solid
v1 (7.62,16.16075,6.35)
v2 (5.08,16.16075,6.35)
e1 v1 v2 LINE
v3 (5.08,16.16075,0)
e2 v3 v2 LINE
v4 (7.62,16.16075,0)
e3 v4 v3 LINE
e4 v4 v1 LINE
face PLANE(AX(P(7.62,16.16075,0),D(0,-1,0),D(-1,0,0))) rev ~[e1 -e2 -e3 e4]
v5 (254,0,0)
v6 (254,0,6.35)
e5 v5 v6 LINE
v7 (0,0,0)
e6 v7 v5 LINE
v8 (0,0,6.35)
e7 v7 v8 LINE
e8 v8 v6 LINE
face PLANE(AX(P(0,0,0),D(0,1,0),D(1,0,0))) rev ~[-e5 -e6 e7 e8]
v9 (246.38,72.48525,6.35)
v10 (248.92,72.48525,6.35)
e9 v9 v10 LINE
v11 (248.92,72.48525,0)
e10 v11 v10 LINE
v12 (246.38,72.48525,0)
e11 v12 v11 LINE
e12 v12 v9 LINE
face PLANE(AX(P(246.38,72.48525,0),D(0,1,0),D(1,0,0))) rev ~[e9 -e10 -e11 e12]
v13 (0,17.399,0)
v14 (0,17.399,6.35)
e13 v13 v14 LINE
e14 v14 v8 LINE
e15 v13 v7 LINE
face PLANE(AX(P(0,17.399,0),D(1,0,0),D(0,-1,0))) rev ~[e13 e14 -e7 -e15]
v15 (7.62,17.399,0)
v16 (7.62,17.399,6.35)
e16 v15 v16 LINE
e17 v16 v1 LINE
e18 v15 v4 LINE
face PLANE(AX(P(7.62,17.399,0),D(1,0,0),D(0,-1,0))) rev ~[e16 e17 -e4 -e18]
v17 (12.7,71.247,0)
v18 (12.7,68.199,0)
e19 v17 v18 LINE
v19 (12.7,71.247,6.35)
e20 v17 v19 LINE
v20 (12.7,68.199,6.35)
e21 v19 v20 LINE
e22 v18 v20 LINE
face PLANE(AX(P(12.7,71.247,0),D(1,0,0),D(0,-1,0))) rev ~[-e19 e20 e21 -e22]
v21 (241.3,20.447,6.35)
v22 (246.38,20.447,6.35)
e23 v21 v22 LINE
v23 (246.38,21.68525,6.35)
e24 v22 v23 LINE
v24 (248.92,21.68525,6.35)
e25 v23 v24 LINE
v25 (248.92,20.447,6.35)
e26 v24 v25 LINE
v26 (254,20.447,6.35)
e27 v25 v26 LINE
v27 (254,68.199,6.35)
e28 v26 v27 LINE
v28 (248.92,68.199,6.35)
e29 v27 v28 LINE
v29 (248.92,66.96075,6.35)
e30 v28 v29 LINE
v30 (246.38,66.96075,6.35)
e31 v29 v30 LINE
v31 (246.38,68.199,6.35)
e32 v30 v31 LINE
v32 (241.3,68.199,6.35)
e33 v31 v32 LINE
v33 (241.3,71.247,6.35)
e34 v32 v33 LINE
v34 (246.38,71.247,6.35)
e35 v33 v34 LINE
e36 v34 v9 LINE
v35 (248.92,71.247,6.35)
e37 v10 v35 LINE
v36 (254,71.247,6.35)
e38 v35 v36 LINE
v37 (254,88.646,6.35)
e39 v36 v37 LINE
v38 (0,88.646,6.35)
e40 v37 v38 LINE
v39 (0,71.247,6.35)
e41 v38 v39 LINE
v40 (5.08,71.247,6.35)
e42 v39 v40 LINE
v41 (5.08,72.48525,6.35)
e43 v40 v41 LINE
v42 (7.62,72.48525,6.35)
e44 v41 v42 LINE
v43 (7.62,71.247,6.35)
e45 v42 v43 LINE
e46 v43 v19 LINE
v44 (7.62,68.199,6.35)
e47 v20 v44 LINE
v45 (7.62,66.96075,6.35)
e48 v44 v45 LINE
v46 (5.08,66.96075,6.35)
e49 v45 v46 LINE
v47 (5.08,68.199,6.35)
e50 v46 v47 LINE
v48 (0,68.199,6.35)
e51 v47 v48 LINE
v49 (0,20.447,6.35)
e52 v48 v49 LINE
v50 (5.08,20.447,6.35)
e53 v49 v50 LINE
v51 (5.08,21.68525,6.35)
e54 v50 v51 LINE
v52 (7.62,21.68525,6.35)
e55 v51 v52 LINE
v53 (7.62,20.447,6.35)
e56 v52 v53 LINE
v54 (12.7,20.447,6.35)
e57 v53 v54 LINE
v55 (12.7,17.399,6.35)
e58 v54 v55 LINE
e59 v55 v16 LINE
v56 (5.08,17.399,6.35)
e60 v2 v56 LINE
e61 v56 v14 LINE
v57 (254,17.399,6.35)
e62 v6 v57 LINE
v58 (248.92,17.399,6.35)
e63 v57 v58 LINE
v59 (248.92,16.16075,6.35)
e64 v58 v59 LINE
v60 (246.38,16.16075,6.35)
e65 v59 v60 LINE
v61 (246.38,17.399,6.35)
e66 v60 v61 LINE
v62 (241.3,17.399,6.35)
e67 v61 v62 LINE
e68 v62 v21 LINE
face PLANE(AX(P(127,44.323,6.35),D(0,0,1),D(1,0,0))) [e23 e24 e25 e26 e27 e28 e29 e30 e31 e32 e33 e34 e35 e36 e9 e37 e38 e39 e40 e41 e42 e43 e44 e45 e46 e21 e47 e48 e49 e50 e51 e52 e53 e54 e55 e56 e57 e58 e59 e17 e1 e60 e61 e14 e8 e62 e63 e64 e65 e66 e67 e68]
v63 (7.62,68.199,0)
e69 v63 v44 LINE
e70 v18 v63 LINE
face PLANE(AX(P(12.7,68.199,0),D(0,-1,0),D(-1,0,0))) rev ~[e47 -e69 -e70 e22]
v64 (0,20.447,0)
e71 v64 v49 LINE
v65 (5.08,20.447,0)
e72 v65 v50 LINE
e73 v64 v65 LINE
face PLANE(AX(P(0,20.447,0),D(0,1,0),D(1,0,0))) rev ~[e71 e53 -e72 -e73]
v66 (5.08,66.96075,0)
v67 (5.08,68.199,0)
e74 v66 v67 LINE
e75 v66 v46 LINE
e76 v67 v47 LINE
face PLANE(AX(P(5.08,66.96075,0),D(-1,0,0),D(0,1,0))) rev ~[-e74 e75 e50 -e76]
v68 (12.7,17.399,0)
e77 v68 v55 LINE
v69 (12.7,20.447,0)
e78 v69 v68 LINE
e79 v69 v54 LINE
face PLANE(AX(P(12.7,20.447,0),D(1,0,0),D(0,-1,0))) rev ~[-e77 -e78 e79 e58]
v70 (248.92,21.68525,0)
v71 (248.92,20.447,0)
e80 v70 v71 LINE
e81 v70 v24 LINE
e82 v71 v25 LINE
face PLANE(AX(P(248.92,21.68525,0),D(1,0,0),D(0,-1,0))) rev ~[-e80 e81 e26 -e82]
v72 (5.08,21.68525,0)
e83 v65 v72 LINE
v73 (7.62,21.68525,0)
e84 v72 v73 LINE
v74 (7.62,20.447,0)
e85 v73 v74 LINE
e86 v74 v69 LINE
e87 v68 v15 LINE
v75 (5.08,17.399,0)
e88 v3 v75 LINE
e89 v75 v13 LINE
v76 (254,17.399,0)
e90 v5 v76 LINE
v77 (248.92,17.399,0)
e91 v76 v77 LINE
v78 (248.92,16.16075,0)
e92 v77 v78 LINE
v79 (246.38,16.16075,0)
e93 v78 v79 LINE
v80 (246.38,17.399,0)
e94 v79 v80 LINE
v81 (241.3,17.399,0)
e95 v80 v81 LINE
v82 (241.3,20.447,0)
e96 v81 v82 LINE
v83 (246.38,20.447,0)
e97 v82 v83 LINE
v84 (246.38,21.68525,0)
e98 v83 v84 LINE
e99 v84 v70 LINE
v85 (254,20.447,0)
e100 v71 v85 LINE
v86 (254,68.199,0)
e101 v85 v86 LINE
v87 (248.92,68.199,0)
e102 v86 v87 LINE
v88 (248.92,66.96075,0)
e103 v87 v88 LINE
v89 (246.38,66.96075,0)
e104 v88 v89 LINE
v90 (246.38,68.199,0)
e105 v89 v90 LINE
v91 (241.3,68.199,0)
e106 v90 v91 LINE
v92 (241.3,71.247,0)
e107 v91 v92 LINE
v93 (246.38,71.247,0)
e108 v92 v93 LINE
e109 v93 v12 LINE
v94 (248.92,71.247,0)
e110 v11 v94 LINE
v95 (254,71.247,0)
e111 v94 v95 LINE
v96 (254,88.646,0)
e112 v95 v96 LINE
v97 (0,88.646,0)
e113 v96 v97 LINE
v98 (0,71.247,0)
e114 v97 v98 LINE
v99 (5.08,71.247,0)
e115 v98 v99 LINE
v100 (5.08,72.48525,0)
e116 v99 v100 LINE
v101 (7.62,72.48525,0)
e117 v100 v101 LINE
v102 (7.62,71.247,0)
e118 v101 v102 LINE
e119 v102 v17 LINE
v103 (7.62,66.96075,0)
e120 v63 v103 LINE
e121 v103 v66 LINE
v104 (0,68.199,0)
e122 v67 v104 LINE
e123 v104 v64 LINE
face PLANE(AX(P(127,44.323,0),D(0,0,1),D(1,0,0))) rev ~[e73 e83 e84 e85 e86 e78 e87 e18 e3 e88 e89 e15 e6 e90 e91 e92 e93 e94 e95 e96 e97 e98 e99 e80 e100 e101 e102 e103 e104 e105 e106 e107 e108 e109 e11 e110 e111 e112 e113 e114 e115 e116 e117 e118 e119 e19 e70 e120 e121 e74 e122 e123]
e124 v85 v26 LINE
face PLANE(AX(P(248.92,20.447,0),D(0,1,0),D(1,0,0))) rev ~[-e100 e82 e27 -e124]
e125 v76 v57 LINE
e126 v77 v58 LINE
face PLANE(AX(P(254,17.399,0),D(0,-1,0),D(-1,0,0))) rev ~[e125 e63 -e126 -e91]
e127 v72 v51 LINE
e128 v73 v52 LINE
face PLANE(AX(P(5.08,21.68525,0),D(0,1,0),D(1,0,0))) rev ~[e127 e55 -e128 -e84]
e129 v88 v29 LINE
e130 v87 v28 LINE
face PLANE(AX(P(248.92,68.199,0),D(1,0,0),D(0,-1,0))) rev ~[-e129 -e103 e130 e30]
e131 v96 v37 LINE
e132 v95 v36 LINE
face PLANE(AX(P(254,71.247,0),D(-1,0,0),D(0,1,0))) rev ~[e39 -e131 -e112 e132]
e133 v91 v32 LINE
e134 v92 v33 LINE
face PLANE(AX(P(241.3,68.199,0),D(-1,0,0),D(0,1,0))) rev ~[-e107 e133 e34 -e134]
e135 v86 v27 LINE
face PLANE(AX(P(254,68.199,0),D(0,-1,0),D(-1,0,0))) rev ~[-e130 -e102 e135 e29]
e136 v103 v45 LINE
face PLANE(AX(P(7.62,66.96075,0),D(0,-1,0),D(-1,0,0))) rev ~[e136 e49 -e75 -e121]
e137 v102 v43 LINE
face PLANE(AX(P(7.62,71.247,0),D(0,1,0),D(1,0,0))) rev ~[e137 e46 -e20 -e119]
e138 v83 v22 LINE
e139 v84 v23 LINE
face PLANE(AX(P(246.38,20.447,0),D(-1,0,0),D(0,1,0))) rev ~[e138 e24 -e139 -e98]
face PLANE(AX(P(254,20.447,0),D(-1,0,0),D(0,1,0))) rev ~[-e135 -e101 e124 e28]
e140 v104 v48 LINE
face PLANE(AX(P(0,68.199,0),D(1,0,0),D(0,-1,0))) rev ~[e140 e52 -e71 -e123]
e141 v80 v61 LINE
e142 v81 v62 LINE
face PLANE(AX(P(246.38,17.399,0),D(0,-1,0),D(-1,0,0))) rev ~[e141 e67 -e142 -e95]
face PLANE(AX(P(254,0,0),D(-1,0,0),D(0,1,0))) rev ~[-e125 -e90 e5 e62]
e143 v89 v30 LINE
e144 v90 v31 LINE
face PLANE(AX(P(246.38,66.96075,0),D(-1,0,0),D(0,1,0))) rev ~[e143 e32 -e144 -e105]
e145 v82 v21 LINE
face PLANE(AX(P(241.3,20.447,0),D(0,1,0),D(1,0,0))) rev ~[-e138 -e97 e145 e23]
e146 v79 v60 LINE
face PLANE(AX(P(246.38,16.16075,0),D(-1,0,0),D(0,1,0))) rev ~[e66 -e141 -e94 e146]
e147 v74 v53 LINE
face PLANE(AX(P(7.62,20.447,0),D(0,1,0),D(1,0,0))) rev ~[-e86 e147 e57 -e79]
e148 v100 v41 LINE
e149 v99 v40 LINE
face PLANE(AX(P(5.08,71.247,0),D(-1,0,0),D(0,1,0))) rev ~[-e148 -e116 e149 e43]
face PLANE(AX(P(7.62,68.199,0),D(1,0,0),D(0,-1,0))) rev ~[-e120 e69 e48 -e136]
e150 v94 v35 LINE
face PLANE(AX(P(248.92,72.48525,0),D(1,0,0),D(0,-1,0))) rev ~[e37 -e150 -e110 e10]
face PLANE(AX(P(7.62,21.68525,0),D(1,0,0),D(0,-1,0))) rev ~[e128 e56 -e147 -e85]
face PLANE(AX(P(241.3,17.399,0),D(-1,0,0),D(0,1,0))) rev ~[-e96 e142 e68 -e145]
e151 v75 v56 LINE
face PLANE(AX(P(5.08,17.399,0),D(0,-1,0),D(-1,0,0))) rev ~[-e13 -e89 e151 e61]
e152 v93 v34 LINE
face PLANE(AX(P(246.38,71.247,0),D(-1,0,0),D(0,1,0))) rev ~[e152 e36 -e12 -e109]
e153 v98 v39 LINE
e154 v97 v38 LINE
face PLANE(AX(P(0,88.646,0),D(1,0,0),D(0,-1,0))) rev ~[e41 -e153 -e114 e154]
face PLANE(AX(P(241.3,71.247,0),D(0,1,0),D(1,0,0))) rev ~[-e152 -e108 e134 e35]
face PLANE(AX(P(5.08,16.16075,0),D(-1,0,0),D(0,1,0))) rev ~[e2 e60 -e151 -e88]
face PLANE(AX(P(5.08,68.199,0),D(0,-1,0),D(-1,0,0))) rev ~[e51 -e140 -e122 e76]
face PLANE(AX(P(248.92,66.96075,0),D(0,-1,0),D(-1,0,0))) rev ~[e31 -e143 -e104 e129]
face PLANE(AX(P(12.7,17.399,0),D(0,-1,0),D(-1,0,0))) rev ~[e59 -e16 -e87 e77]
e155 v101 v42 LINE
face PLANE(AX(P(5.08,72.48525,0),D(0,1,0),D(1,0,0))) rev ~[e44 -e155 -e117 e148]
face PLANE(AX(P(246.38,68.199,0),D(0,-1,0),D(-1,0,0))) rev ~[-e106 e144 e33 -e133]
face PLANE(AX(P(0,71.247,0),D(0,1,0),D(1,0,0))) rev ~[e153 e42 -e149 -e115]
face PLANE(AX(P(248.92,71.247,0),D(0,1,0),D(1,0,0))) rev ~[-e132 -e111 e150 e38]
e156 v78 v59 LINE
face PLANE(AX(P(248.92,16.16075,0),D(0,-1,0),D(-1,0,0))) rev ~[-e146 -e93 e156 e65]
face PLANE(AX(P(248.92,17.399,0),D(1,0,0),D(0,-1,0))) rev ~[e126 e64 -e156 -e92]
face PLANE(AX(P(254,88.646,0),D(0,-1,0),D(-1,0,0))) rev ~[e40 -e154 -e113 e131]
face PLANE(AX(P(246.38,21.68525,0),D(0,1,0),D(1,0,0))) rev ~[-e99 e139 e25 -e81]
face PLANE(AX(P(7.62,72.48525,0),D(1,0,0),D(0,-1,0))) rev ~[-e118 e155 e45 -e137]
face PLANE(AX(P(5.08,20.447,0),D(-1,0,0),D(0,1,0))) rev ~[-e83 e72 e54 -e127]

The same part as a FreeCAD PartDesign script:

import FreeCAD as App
import Part
import Sketcher
Q = App.Units.Quantity


def add_polygon(sketch, points):
    """Adds a closed chain of lines whose ends are joined by coincident constraints."""
    first, n = sketch.GeometryCount, len(points)
    for a, b in zip(points, points[1:] + points[:1]):
        sketch.addGeometry(Part.LineSegment(App.Vector(*a, 0), App.Vector(*b, 0)), False)
    for i in range(n):
        sketch.addConstraint(Sketcher.Constraint("Coincident", first + i, 2, first + (i + 1) % n, 1))

doc = App.newDocument("Part")
body = doc.addObject("PartDesign::Body", "Body")

sketch1 = body.newObject("Sketcher::SketchObject", "Sketch")
sketch1.AttachmentSupport = (doc.getObject("XY_Plane"), [""])
sketch1.MapMode = "FlatFace"
add_polygon(sketch1, [(0, 17.4), (0, 0), (254, 0), (254, 17.4), (248.9, 17.4), (248.9, 16.2), (246.4, 16.2), (246.4, 17.4), (241.3, 17.4), (241.3, 20.4), (246.4, 20.4), (246.4, 21.7), (248.9, 21.7), (248.9, 20.4), (254, 20.4), (254, 68.2), (248.9, 68.2), (248.9, 67), (246.4, 67), (246.4, 68.2), (241.3, 68.2), (241.3, 71.2), (246.4, 71.2), (246.4, 72.5), (248.9, 72.5), (248.9, 71.2), (254, 71.2), (254, 88.6), (0, 88.6), (0, 71.2), (5.1, 71.2), (5.1, 72.5), (7.6, 72.5), (7.6, 71.2), (12.7, 71.2), (12.7, 68.2), (7.6, 68.2), (7.6, 67), (5.1, 67), (5.1, 68.2), (0, 68.2), (0, 20.4), (5.1, 20.4), (5.1, 21.7), (7.6, 21.7), (7.6, 20.4), (12.7, 20.4), (12.7, 17.4), (7.6, 17.4), (7.6, 16.2), (5.1, 16.2), (5.1, 17.4)])
sketch1.addConstraint([
    Sketcher.Constraint("Vertical", 0),
    Sketcher.Constraint("Horizontal", 1),
    Sketcher.Constraint("Vertical", 2),
    Sketcher.Constraint("Horizontal", 3),
    Sketcher.Constraint("Vertical", 4),
    Sketcher.Constraint("Horizontal", 5),
    Sketcher.Constraint("Vertical", 6),
    Sketcher.Constraint("Horizontal", 7),
    Sketcher.Constraint("Vertical", 8),
    Sketcher.Constraint("Horizontal", 9),
    Sketcher.Constraint("Vertical", 10),
    Sketcher.Constraint("Horizontal", 11),
    Sketcher.Constraint("Vertical", 12),
    Sketcher.Constraint("Horizontal", 13),
    Sketcher.Constraint("Vertical", 14),
    Sketcher.Constraint("Horizontal", 15),
    Sketcher.Constraint("Vertical", 16),
    Sketcher.Constraint("Horizontal", 17),
    Sketcher.Constraint("Vertical", 18),
    Sketcher.Constraint("Horizontal", 19),
    Sketcher.Constraint("Vertical", 20),
    Sketcher.Constraint("Horizontal", 21),
    Sketcher.Constraint("Vertical", 22),
    Sketcher.Constraint("Horizontal", 23),
    Sketcher.Constraint("Vertical", 24),
    Sketcher.Constraint("Horizontal", 25),
    Sketcher.Constraint("Vertical", 26),
    Sketcher.Constraint("Horizontal", 27),
    Sketcher.Constraint("Vertical", 28),
    Sketcher.Constraint("Horizontal", 29),
    Sketcher.Constraint("Vertical", 30),
    Sketcher.Constraint("Horizontal", 31),
    Sketcher.Constraint("Vertical", 32),
    Sketcher.Constraint("Horizontal", 33),
    Sketcher.Constraint("Vertical", 34),
    Sketcher.Constraint("Horizontal", 35),
    Sketcher.Constraint("Vertical", 36),
    Sketcher.Constraint("Horizontal", 37),
    Sketcher.Constraint("Vertical", 38),
    Sketcher.Constraint("Horizontal", 39),
    Sketcher.Constraint("Vertical", 40),
    Sketcher.Constraint("Horizontal", 41),
    Sketcher.Constraint("Vertical", 42),
    Sketcher.Constraint("Horizontal", 43),
    Sketcher.Constraint("Vertical", 44),
    Sketcher.Constraint("Horizontal", 45),
    Sketcher.Constraint("Vertical", 46),
    Sketcher.Constraint("Horizontal", 47),
    Sketcher.Constraint("Vertical", 48),
    Sketcher.Constraint("Horizontal", 49),
    Sketcher.Constraint("Vertical", 50),
    Sketcher.Constraint("Horizontal", 51),
    Sketcher.Constraint("Coincident", 0, 2, -1, 1),
    Sketcher.Constraint("PointOnObject", 27, 2, -2),
    Sketcher.Constraint("PointOnObject", 39, 2, -2),
    Sketcher.Constraint("Horizontal", 3, 2, 6, 2),
    Sketcher.Constraint("Horizontal", 9, 2, 12, 2),
    Sketcher.Constraint("Horizontal", 15, 2, 18, 2),
    Sketcher.Constraint("Horizontal", 21, 2, 24, 2),
    Sketcher.Constraint("Horizontal", 25, 2, 28, 2),
    Sketcher.Constraint("Horizontal", 23, 2, 30, 2),
    Sketcher.Constraint("Horizontal", 29, 2, 32, 2),
    Sketcher.Constraint("Horizontal", 19, 2, 34, 2),
    Sketcher.Constraint("Horizontal", 17, 2, 36, 2),
    Sketcher.Constraint("Horizontal", 35, 2, 38, 2),
    Sketcher.Constraint("Horizontal", 13, 2, 40, 2),
    Sketcher.Constraint("Horizontal", 11, 2, 42, 2),
    Sketcher.Constraint("Horizontal", 41, 2, 44, 2),
    Sketcher.Constraint("Horizontal", 7, 2, 46, 2),
    Sketcher.Constraint("Horizontal", 5, 2, 48, 2),
    Sketcher.Constraint("Horizontal", 47, 2, 50, 2),
    Sketcher.Constraint("Vertical", 6, 2, 9, 2),
    Sketcher.Constraint("Vertical", 4, 2, 11, 2),
    Sketcher.Constraint("Vertical", 2, 2, 13, 2),
    Sketcher.Constraint("Vertical", 12, 2, 15, 2),
    Sketcher.Constraint("Vertical", 10, 2, 17, 2),
    Sketcher.Constraint("Vertical", 8, 2, 19, 2),
    Sketcher.Constraint("Vertical", 18, 2, 21, 2),
    Sketcher.Constraint("Vertical", 16, 2, 23, 2),
    Sketcher.Constraint("Vertical", 14, 2, 25, 2),
    Sketcher.Constraint("Vertical", 32, 2, 35, 2),
    Sketcher.Constraint("Vertical", 30, 2, 37, 2),
    Sketcher.Constraint("Vertical", 38, 2, 41, 2),
    Sketcher.Constraint("Vertical", 36, 2, 43, 2),
    Sketcher.Constraint("Vertical", 34, 2, 45, 2),
    Sketcher.Constraint("Vertical", 44, 2, 47, 2),
    Sketcher.Constraint("Vertical", 42, 2, 49, 2),
    Sketcher.Constraint("Equal", 3, 7),
    Sketcher.Constraint("Equal", 25, 29),
    Sketcher.Constraint("Equal", 23, 31),
    Sketcher.Constraint("Equal", 29, 33),
    Sketcher.Constraint("Equal", 6, 10),
    Sketcher.Constraint("Equal", 12, 16),
    Sketcher.Constraint("Equal", 8, 20),
    Sketcher.Constraint("Equal", 18, 22),
    Sketcher.Constraint("Equal", 2, 26),
    Sketcher.Constraint("DistanceX", 1, 1, 1, 2, Q("10 in")),
    Sketcher.Constraint("DistanceX", 3, 2, 3, 1, Q("0.2 in")),
    Sketcher.Constraint("DistanceX", 5, 2, 5, 1, Q("0.1 in")),
    Sketcher.Constraint("DistanceY", 8, 1, 8, 2, Q("0.12 in")),
    Sketcher.Constraint("DistanceY", 14, 1, 14, 2, Q("1.88 in")),
    Sketcher.Constraint("DistanceY", 0, 2, 0, 1, Q("0.685 in")),
    Sketcher.Constraint("DistanceY", 5, 2, 10, 2, Q("0.2175 in")),
])
pad1 = body.newObject("PartDesign::Pad", "Pad")
pad1.Profile = sketch1
pad1.Length = Q("0.25 in")

doc.recompute()
